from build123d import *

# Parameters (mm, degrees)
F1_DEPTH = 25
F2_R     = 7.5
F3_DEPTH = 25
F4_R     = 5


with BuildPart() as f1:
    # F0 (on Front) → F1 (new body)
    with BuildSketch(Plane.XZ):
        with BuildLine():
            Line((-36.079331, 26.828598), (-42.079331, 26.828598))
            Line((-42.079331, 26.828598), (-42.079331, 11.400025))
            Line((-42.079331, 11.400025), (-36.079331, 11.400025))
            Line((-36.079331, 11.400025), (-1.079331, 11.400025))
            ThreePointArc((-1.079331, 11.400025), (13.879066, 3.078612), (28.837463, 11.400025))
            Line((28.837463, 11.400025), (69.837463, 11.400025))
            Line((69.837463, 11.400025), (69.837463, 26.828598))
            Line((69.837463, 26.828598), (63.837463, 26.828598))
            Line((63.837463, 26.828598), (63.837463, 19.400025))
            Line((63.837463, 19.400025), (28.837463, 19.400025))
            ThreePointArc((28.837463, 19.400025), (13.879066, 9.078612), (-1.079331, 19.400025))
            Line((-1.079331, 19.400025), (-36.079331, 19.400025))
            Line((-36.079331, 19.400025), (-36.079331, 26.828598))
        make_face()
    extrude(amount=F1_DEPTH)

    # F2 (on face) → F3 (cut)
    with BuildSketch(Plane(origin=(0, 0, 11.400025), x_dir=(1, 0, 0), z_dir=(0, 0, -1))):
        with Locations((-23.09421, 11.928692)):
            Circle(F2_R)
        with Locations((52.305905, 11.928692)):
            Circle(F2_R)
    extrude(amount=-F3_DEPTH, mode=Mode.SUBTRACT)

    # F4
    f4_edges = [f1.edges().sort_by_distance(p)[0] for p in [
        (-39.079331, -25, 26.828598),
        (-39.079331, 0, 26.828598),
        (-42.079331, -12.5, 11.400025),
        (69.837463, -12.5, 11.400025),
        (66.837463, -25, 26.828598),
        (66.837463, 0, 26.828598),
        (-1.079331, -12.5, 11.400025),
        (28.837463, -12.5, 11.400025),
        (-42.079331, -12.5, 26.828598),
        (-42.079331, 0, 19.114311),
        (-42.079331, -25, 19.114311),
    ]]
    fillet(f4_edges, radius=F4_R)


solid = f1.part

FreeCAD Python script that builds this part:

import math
import FreeCAD as App
import Part
import Sketcher
from FreeCAD import Vector


def edges_at(feature, points):
    """Names of the edges that pass closest to the given points."""
    edges = feature.Shape.Edges
    near = lambda p: min(range(len(edges)), key=lambda i: edges[i].distToShape(Part.Vertex(*p))[0])
    return sorted({f"Edge{near(p) + 1}" for p in points})

doc = App.newDocument("Part")
body = doc.addObject("PartDesign::Body", "Body")

sketch1 = body.newObject("Sketcher::SketchObject", "Sketch")
sketch1.AttachmentSupport = (doc.getObject("XZ_Plane"), [""])
sketch1.MapMode = "FlatFace"
sketch1.addGeometry(Part.LineSegment(Vector(-36, 27, 0), Vector(-42, 27, 0)), False)
sketch1.addGeometry(Part.LineSegment(Vector(-42, 27, 0), Vector(-42, 11, 0)), False)
sketch1.addGeometry(Part.LineSegment(Vector(-42, 11, 0), Vector(-1, 11, 0)), False)
sketch1.addGeometry(Part.ArcOfCircle(Part.Circle(Vector(14, 21, 0), Vector(0, 0, 1), 18), math.radians(-148), math.radians(-32)), False)
sketch1.addGeometry(Part.LineSegment(Vector(29, 11, 0), Vector(70, 11, 0)), False)
sketch1.addGeometry(Part.LineSegment(Vector(70, 11, 0), Vector(70, 27, 0)), False)
sketch1.addGeometry(Part.LineSegment(Vector(70, 27, 0), Vector(64, 27, 0)), False)
sketch1.addGeometry(Part.LineSegment(Vector(64, 27, 0), Vector(64, 19, 0)), False)
sketch1.addGeometry(Part.LineSegment(Vector(64, 19, 0), Vector(29, 19, 0)), False)
sketch1.addGeometry(Part.ArcOfCircle(Part.Circle(Vector(14, 25, 0), Vector(0, 0, 1), 16), math.radians(-159), math.radians(-21)), False)
sketch1.addGeometry(Part.LineSegment(Vector(-1, 19, 0), Vector(-36, 19, 0)), False)
sketch1.addGeometry(Part.LineSegment(Vector(-36, 19, 0), Vector(-36, 27, 0)), False)
sketch1.addConstraint(Sketcher.Constraint("Coincident", 0, 2, 1, 1))
sketch1.addConstraint(Sketcher.Constraint("Coincident", 1, 2, 2, 1))
sketch1.addConstraint(Sketcher.Constraint("Coincident", 2, 2, 3, 1))
sketch1.addConstraint(Sketcher.Constraint("Coincident", 3, 2, 4, 1))
sketch1.addConstraint(Sketcher.Constraint("Coincident", 4, 2, 5, 1))
sketch1.addConstraint(Sketcher.Constraint("Coincident", 5, 2, 6, 1))
sketch1.addConstraint(Sketcher.Constraint("Coincident", 6, 2, 7, 1))
sketch1.addConstraint(Sketcher.Constraint("Coincident", 7, 2, 8, 1))
sketch1.addConstraint(Sketcher.Constraint("Coincident", 8, 2, 9, 2))
sketch1.addConstraint(Sketcher.Constraint("Coincident", 9, 1, 10, 1))
sketch1.addConstraint(Sketcher.Constraint("Coincident", 10, 2, 11, 1))
sketch1.addConstraint(Sketcher.Constraint("Coincident", 11, 2, 0, 1))
sketch1.addConstraint(Sketcher.Constraint("Horizontal", 0))
sketch1.addConstraint(Sketcher.Constraint("Vertical", 1))
sketch1.addConstraint(Sketcher.Constraint("Horizontal", 2))
sketch1.addConstraint(Sketcher.Constraint("Horizontal", 4))
sketch1.addConstraint(Sketcher.Constraint("Vertical", 5))
sketch1.addConstraint(Sketcher.Constraint("Horizontal", 6))
sketch1.addConstraint(Sketcher.Constraint("Vertical", 7))
sketch1.addConstraint(Sketcher.Constraint("Horizontal", 8))
sketch1.addConstraint(Sketcher.Constraint("Horizontal", 10))
sketch1.addConstraint(Sketcher.Constraint("Vertical", 11))
sketch1.addConstraint(Sketcher.Constraint("Horizontal", 2, 2, 3, 2))
sketch1.addConstraint(Sketcher.Constraint("Horizontal", 0, 2, 5, 2))
sketch1.addConstraint(Sketcher.Constraint("Horizontal", 8, 2, 9, 1))
sketch1.addConstraint(Sketcher.Constraint("Vertical", 3, 3, 9, 3))
sketch1.addConstraint(Sketcher.Constraint("Vertical", 3, 2, 8, 2))
sketch1.addConstraint(Sketcher.Constraint("Equal", 2, 4))
sketch1.addConstraint(Sketcher.Constraint("Equal", 0, 6))
sketch1.addConstraint(Sketcher.Constraint("Radius", 9, 16.0))
sketch1.addConstraint(Sketcher.Constraint("DistanceX", 0, 2, 0, 1, 6.0))
sketch1.addConstraint(Sketcher.Constraint("DistanceX", 2, 1, 2, 2, 41.0))
sketch1.addConstraint(Sketcher.Constraint("DistanceY", 4, 2, 7, 2, 8.0))
sketch1.addConstraint(Sketcher.Constraint("Radius", 3, 17.605156))
sketch1.addConstraint(Sketcher.Constraint("DistanceY", 1, 2, 1, 1, 15.428573))
sketch1.addConstraint(Sketcher.Constraint("DistanceY", -1, 1, 3, 3, 20.683768))
sketch1.addConstraint(Sketcher.Constraint("DistanceY", -1, 1, 9, 3, 25.078612))
sketch1.addConstraint(Sketcher.Constraint("DistanceX", 0, 2, -1, 1, 42.079331))
pad1 = body.newObject("PartDesign::Pad", "Pad")
pad1.Profile = sketch1
pad1.Length = 25

sketch2 = body.newObject("Sketcher::SketchObject", "Sketch001")
sketch2.AttachmentSupport = (doc.getObject("XY_Plane"), [""])
sketch2.MapMode = "FlatFace"
sketch2.AttachmentOffset = App.Placement(Vector(0, 0, 11.400025), App.Rotation())
sketch2.addGeometry(Part.Circle(Vector(-23, -12, 0), Vector(0, 0, 1), 8), False)
sketch2.addGeometry(Part.Circle(Vector(52, -12, 0), Vector(0, 0, 1), 8), False)
sketch2.addConstraint(Sketcher.Constraint("Equal", 0, 1))
sketch2.addConstraint(Sketcher.Constraint("Horizontal", 0, 3, 1, 3))
sketch2.addConstraint(Sketcher.Constraint("Diameter", 0, 15.0))
sketch2.addConstraint(Sketcher.Constraint("DistanceX", 0, 3, -1, 1, 23.09421))
sketch2.addConstraint(Sketcher.Constraint("DistanceY", 0, 3, -1, 1, 11.928692))
sketch2.addConstraint(Sketcher.Constraint("DistanceX", -1, 1, 1, 3, 52.305905))
pocket1 = body.newObject("PartDesign::Pocket", "Pocket")
pocket1.Profile = sketch2
pocket1.Length = 25
pocket1.Reversed = True
doc.recompute()

fillet = body.newObject("PartDesign::Fillet", "Fillet")
fillet.Base = (pocket1, edges_at(pocket1, [
    (-39.079, -25, 26.829),
    (-39.079, 0, 26.829),
    (-42.079, -12.5, 11.4),
    (69.837, -12.5, 11.4),
    (66.837, -25, 26.829),
    (66.837, 0, 26.829),
    (-1.079, -12.5, 11.4),
    (28.837, -12.5, 11.4),
    (-42.079, -12.5, 26.829),
    (-42.079, 0, 19.114),
    (-42.079, -25, 19.114),
]))
fillet.Radius = 5

doc.recompute()
